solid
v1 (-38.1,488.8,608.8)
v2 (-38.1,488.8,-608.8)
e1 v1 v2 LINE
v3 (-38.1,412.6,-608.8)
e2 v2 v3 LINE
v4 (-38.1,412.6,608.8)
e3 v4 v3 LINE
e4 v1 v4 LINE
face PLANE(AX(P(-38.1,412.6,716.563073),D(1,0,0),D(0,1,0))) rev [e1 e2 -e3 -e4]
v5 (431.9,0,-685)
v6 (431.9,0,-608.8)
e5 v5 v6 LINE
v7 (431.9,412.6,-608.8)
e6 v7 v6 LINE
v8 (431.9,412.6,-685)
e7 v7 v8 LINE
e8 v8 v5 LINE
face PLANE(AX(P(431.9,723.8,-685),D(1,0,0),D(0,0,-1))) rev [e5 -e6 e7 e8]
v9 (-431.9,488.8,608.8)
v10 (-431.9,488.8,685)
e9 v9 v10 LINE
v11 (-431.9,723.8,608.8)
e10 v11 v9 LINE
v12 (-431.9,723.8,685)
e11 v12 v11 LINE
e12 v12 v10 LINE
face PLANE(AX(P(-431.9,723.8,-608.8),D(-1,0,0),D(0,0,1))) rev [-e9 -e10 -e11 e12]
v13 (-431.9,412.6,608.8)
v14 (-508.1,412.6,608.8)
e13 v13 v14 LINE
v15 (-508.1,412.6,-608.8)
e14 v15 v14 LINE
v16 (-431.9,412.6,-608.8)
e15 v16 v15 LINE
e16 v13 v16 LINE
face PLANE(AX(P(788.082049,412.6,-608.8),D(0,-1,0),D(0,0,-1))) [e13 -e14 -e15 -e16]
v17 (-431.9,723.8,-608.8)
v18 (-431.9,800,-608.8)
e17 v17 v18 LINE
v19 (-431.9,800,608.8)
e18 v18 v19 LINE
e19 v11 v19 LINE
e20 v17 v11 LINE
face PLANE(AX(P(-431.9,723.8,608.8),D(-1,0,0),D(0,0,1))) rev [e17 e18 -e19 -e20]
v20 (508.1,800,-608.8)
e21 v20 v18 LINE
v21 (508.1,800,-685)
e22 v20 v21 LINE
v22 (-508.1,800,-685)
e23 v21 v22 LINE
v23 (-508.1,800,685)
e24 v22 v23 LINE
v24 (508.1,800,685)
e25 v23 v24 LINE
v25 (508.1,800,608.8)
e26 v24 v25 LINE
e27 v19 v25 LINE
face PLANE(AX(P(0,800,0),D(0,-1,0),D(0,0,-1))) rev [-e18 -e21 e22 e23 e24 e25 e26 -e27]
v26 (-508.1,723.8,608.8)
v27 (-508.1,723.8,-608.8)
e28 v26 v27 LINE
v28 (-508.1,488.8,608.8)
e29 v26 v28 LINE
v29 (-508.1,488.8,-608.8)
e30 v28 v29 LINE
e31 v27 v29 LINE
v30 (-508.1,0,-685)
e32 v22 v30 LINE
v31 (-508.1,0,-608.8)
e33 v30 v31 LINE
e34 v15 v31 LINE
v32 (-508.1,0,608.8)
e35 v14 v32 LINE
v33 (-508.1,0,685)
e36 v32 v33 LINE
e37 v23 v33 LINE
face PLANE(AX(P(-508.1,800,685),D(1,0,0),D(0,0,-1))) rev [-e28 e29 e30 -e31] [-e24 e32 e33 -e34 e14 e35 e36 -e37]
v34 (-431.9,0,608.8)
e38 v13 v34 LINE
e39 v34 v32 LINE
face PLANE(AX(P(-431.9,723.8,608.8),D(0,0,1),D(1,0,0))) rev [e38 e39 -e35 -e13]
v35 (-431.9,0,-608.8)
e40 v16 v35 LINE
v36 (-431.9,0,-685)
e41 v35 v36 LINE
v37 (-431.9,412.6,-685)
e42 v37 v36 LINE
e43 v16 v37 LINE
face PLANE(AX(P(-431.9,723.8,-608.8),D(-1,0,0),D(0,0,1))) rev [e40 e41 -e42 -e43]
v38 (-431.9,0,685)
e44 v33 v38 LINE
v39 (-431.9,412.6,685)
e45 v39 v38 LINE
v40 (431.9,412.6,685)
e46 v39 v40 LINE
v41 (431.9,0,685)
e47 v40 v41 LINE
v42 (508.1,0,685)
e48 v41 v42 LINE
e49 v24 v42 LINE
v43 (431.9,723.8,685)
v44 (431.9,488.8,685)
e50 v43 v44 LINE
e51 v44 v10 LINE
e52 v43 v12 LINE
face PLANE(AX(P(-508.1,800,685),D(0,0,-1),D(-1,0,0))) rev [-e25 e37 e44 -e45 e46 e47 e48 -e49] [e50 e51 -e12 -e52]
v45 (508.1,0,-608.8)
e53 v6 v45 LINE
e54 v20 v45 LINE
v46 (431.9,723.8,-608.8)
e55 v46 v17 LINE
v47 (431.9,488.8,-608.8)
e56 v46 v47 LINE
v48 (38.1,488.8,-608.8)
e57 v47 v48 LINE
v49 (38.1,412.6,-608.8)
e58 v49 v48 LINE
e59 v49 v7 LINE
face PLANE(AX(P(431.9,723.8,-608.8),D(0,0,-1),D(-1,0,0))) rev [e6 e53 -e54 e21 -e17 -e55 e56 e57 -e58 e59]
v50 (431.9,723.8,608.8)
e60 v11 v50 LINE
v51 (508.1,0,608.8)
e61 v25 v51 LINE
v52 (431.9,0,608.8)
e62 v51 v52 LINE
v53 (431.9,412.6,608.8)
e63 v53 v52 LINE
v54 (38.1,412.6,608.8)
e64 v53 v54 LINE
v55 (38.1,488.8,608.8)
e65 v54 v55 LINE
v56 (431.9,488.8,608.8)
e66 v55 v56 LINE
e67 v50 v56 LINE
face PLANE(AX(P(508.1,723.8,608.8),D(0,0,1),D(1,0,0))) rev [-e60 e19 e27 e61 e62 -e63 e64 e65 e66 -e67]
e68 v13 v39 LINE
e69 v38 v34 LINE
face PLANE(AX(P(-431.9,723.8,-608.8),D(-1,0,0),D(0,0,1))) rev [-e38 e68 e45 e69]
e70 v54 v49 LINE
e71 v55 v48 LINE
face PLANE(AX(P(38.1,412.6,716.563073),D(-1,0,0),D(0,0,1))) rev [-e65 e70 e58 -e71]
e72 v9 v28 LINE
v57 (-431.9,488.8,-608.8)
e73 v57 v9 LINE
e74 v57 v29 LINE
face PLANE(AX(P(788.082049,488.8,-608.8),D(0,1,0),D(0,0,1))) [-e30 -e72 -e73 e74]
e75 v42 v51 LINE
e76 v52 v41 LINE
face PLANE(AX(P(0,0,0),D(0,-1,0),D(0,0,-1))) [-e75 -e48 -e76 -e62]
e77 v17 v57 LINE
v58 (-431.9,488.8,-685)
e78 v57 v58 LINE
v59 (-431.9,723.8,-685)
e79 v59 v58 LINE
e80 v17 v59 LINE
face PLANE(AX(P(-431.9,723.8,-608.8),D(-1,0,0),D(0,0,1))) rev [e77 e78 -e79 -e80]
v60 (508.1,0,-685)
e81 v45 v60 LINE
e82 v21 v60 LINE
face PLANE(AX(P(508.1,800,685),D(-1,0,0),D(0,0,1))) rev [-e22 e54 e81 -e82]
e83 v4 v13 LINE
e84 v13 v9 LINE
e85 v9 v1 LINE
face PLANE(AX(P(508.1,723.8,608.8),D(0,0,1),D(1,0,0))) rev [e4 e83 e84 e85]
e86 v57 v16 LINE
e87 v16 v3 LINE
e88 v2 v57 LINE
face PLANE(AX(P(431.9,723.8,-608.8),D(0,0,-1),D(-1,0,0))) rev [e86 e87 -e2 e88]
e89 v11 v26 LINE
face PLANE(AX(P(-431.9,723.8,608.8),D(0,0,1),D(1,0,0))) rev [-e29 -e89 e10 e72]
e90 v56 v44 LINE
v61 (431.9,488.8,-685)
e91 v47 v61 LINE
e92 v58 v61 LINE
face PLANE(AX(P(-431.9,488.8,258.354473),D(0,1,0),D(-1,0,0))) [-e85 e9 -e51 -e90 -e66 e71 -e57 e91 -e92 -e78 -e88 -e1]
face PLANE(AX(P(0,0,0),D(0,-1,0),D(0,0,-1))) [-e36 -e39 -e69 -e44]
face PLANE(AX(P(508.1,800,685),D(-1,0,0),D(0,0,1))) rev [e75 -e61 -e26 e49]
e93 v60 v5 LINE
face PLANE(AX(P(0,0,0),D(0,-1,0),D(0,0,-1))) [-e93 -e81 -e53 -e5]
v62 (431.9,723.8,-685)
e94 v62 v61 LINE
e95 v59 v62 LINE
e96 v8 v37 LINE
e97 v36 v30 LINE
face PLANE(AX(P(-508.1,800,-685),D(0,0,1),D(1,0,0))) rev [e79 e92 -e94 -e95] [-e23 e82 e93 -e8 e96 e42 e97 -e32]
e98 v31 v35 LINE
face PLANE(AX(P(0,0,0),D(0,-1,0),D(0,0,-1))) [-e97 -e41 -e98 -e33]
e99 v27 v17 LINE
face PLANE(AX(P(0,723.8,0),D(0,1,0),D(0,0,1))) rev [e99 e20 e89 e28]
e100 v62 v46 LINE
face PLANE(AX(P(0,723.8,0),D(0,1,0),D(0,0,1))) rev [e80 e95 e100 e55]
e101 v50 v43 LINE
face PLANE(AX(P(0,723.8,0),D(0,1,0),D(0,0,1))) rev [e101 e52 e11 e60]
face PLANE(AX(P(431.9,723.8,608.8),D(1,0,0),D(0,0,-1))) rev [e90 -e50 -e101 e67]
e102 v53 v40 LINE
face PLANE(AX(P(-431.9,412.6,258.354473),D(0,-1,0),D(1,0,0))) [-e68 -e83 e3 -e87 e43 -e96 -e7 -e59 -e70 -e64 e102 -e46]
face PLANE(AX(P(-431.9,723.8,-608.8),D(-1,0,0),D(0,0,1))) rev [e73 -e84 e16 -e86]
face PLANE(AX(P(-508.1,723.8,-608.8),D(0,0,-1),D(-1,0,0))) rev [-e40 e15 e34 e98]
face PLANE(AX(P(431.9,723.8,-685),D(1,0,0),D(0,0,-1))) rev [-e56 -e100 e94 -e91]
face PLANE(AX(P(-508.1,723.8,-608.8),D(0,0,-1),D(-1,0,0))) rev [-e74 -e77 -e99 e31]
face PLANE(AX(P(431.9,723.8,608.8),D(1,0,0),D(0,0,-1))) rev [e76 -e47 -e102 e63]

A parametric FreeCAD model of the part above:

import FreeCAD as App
import Part
import Sketcher
from FreeCAD import Vector


def add_polygon(sketch, points):
    """Adds a closed chain of lines whose ends are joined by coincident constraints."""
    first, n = sketch.GeometryCount, len(points)
    for a, b in zip(points, points[1:] + points[:1]):
        sketch.addGeometry(Part.LineSegment(App.Vector(*a, 0), App.Vector(*b, 0)), False)
    for i in range(n):
        sketch.addConstraint(Sketcher.Constraint("Coincident", first + i, 2, first + (i + 1) % n, 1))

doc = App.newDocument("Part")
body = doc.addObject("PartDesign::Body", "Body")

# Sketch on XZ plane
sketch1 = body.newObject("Sketcher::SketchObject", "Sketch")
sketch1.AttachmentSupport = (doc.getObject("XZ_Plane"), [""])
sketch1.MapMode = "FlatFace"
add_polygon(sketch1, [(-508, -685), (-508, 685), (508, 685), (508, -685)])  # lines 0-3
sketch1.addConstraint([
    Sketcher.Constraint("Vertical", 0),
    Sketcher.Constraint("Horizontal", 1),
    Sketcher.Constraint("Vertical", 2),
    Sketcher.Constraint("Horizontal", 3),
    Sketcher.Constraint("Symmetric", 0, 2, 2, 2, -1, 1),
    Sketcher.Constraint("DistanceY", 0, 1, 0, 2, 1370.0),
    Sketcher.Constraint("DistanceX", 1, 1, 1, 2, 1016.2),
])
pad1 = body.newObject("PartDesign::Pad", "Pad")
pad1.Profile = sketch1
pad1.Length = 800
pad1.Reversed = True

# Sketch on XZ plane
sketch2 = body.newObject("Sketcher::SketchObject", "Sketch001")
sketch2.AttachmentSupport = (doc.getObject("XZ_Plane"), [""])
sketch2.MapMode = "FlatFace"
add_polygon(sketch2, [(432, 609), (432, 685), (-432, 685), (-432, 609), (-508, 609), (-508, -609), (-432, -609), (-432, -685), (432, -685), (432, -609), (508, -609), (508, 609)])  # lines 0-11
sketch2.addConstraint([
    Sketcher.Constraint("Vertical", 0),
    Sketcher.Constraint("Horizontal", 1),
    Sketcher.Constraint("Vertical", 2),
    Sketcher.Constraint("Horizontal", 3),
    Sketcher.Constraint("Vertical", 4),
    Sketcher.Constraint("Horizontal", 5),
    Sketcher.Constraint("Vertical", 6),
    Sketcher.Constraint("Horizontal", 7),
    Sketcher.Constraint("Vertical", 8),
    Sketcher.Constraint("Horizontal", 9),
    Sketcher.Constraint("Vertical", 10),
    Sketcher.Constraint("Horizontal", 11),
    Sketcher.Constraint("Symmetric", 0, 2, 6, 2, -1, 1),
    Sketcher.Constraint("Symmetric", 2, 2, 8, 2, -1, 1),
    Sketcher.Constraint("Symmetric", 4, 2, 10, 2, -1, 1),
    Sketcher.Constraint("Symmetric", 5, 2, 8, 2, -2),
    Sketcher.Constraint("Equal", 11, 0),
    Sketcher.Constraint("DistanceX", 1, 2, 1, 1, 863.8),
    Sketcher.Constraint("DistanceX", 3, 2, 3, 1, 76.2),
    Sketcher.Constraint("DistanceY", 4, 2, 4, 1, 1217.6),
])
pocket1 = body.newObject("PartDesign::Pocket", "Pocket")
pocket1.Profile = sketch2
pocket1.Length = 723.8

# Sketch on XZ plane
sketch3 = body.newObject("Sketcher::SketchObject", "Sketch002")
sketch3.AttachmentSupport = (doc.getObject("XZ_Plane"), [""])
sketch3.MapMode = "FlatFace"
sketch3.AttachmentOffset = App.Placement(Vector(0, 0, -800), App.Rotation())
add_polygon(sketch3, [(-432, -609), (-432, 609), (432, 609), (432, -609)])  # lines 0-3
sketch3.addConstraint([
    Sketcher.Constraint("Vertical", 0),
    Sketcher.Constraint("Horizontal", 1),
    Sketcher.Constraint("Vertical", 2),
    Sketcher.Constraint("Horizontal", 3),
    Sketcher.Constraint("Symmetric", 0, 2, 2, 2, -1, 1),
    Sketcher.Constraint("DistanceX", 1, 1, 1, 2, 863.8),
    Sketcher.Constraint("DistanceY", 0, 1, 0, 2, 1217.6),
])
pocket2 = body.newObject("PartDesign::Pocket", "Pocket001")
pocket2.Profile = sketch3
pocket2.Length = 76.2
pocket2.Reversed = True

# Sketch on YZ plane
sketch4 = body.newObject("Sketcher::SketchObject", "Sketch003")
sketch4.AttachmentSupport = (doc.getObject("YZ_Plane"), [""])
sketch4.MapMode = "FlatFace"
sketch4.AttachmentOffset = App.Placement(Vector(0, 0, -508.1), App.Rotation())
add_polygon(sketch4, [(489, -609), (413, -609), (413, 609), (489, 609)])  # lines 0-3
sketch4.addConstraint([
    Sketcher.Constraint("Horizontal", 0),
    Sketcher.Constraint("Vertical", 1),
    Sketcher.Constraint("Horizontal", 2),
    Sketcher.Constraint("Vertical", 3),
    Sketcher.Constraint("DistanceX", 0, 2, 0, 1, 76.2),
    Sketcher.Constraint("DistanceY", 1, 1, 1, 2, 1217.6),
    Sketcher.Constraint("DistanceX", -1, 1, 0, 2, 412.6),
    Sketcher.Constraint("DistanceY", 0, 2, -1, 1, 608.8),
])
pad2 = body.newObject("PartDesign::Pad", "Pad001")
pad2.Profile = sketch4
pad2.Length = 76.2

# Sketch on XY plane
sketch5 = body.newObject("Sketcher::SketchObject", "Sketch004")
sketch5.AttachmentSupport = (doc.getObject("XY_Plane"), [""])
sketch5.MapMode = "FlatFace"
sketch5.AttachmentOffset = App.Placement(Vector(0, 0, -685), App.Rotation())
add_polygon(sketch5, [(432, 489), (432, 413), (-432, 413), (-432, 489)])  # lines 0-3
sketch5.addConstraint([
    Sketcher.Constraint("Vertical", 0),
    Sketcher.Constraint("Horizontal", 1),
    Sketcher.Constraint("Vertical", 2),
    Sketcher.Constraint("Horizontal", 3),
    Sketcher.Constraint("DistanceX", 1, 2, 1, 1, 863.8),
    Sketcher.Constraint("DistanceY", 0, 2, 0, 1, 76.2),
    Sketcher.Constraint("DistanceX", -1, 1, 0, 2, 431.9),
    Sketcher.Constraint("DistanceY", -1, 1, 0, 2, 412.6),
])
pad3 = body.newObject("PartDesign::Pad", "Pad002")
pad3.Profile = sketch5
pad3.Length = 76.2

# Sketch on YZ plane
sketch6 = body.newObject("Sketcher::SketchObject", "Sketch005")
sketch6.AttachmentSupport = (doc.getObject("YZ_Plane"), [""])
sketch6.MapMode = "FlatFace"
sketch6.AttachmentOffset = App.Placement(Vector(0, 0, 508.1), App.Rotation())
add_polygon(sketch6, [(489, 609), (413, 609), (413, -609), (489, -609)])  # lines 0-3
sketch6.addConstraint([
    Sketcher.Constraint("Horizontal", 0),
    Sketcher.Constraint("Vertical", 1),
    Sketcher.Constraint("Horizontal", 2),
    Sketcher.Constraint("Vertical", 3),
    Sketcher.Constraint("DistanceX", 0, 2, 0, 1, 76.2),
    Sketcher.Constraint("DistanceY", 1, 2, 1, 1, 1217.6),
    Sketcher.Constraint("DistanceX", -1, 1, 0, 2, 412.6),
    Sketcher.Constraint("DistanceY", -1, 1, 0, 2, 608.8),
])
pad4 = body.newObject("PartDesign::Pad", "Pad003")
pad4.Profile = sketch6
pad4.Length = 76.2
pad4.Reversed = True

# Sketch on XY plane
sketch7 = body.newObject("Sketcher::SketchObject", "Sketch006")
sketch7.AttachmentSupport = (doc.getObject("XY_Plane"), [""])
sketch7.MapMode = "FlatFace"
sketch7.AttachmentOffset = App.Placement(Vector(0, 0, 685), App.Rotation())
add_polygon(sketch7, [(-432, 489), (-432, 413), (432, 413), (432, 489)])  # lines 0-3
sketch7.addConstraint([
    Sketcher.Constraint("Vertical", 0),
    Sketcher.Constraint("Horizontal", 1),
    Sketcher.Constraint("Vertical", 2),
    Sketcher.Constraint("Horizontal", 3),
    Sketcher.Constraint("DistanceX", 1, 1, 1, 2, 863.8),
    Sketcher.Constraint("DistanceY", 0, 2, 0, 1, 76.2),
    Sketcher.Constraint("DistanceX", 0, 2, -1, 1, 431.9),
    Sketcher.Constraint("DistanceY", -1, 1, 0, 2, 412.6),
])
pad5 = body.newObject("PartDesign::Pad", "Pad004")
pad5.Profile = sketch7
pad5.Length = 76.2
pad5.Reversed = True

# Sketch on XZ plane
sketch8 = body.newObject("Sketcher::SketchObject", "Sketch007")
sketch8.AttachmentSupport = (doc.getObject("XZ_Plane"), [""])
sketch8.MapMode = "FlatFace"
sketch8.AttachmentOffset = App.Placement(Vector(0, 0, -800), App.Rotation())
add_polygon(sketch8, [(432, -609), (432, 609), (508, 609), (508, -609)])  # lines 0-3
sketch8.addConstraint([
    Sketcher.Constraint("Vertical", 0),
    Sketcher.Constraint("Horizontal", 1),
    Sketcher.Constraint("Vertical", 2),
    Sketcher.Constraint("Horizontal", 3),
    Sketcher.Constraint("DistanceX", 1, 1, 1, 2, 76.2),
    Sketcher.Constraint("DistanceY", 0, 1, 0, 2, 1217.6),
    Sketcher.Constraint("DistanceX", -1, 1, 0, 2, 431.9),
    Sketcher.Constraint("DistanceY", -1, 1, 0, 2, 608.8),
])
pocket3 = body.newObject("PartDesign::Pocket", "Pocket002")
pocket3.Profile = sketch8
pocket3.Length = 387.4
pocket3.Reversed = True

# Sketch on XY plane
sketch9 = body.newObject("Sketcher::SketchObject", "Sketch008")
sketch9.AttachmentSupport = (doc.getObject("XY_Plane"), [""])
sketch9.MapMode = "FlatFace"
sketch9.AttachmentOffset = App.Placement(Vector(0, 0, -608.8), App.Rotation())
add_polygon(sketch9, [(-38, 489), (-38, 413), (38, 413), (38, 489)])  # lines 0-3
sketch9.addConstraint([
    Sketcher.Constraint("Vertical", 0),
    Sketcher.Constraint("Horizontal", 1),
    Sketcher.Constraint("Vertical", 2),
    Sketcher.Constraint("Horizontal", 3),
    Sketcher.Constraint("Equal", 3, 0),
    Sketcher.Constraint("DistanceX", 1, 1, 1, 2, 76.2),
    Sketcher.Constraint("DistanceX", 0, 2, -1, 1, 38.1),
    Sketcher.Constraint("DistanceY", -1, 1, 0, 2, 412.6),
])
pad6 = body.newObject("PartDesign::Pad", "Pad005")
pad6.Profile = sketch9
pad6.Length = 1217.6

doc.recompute()
